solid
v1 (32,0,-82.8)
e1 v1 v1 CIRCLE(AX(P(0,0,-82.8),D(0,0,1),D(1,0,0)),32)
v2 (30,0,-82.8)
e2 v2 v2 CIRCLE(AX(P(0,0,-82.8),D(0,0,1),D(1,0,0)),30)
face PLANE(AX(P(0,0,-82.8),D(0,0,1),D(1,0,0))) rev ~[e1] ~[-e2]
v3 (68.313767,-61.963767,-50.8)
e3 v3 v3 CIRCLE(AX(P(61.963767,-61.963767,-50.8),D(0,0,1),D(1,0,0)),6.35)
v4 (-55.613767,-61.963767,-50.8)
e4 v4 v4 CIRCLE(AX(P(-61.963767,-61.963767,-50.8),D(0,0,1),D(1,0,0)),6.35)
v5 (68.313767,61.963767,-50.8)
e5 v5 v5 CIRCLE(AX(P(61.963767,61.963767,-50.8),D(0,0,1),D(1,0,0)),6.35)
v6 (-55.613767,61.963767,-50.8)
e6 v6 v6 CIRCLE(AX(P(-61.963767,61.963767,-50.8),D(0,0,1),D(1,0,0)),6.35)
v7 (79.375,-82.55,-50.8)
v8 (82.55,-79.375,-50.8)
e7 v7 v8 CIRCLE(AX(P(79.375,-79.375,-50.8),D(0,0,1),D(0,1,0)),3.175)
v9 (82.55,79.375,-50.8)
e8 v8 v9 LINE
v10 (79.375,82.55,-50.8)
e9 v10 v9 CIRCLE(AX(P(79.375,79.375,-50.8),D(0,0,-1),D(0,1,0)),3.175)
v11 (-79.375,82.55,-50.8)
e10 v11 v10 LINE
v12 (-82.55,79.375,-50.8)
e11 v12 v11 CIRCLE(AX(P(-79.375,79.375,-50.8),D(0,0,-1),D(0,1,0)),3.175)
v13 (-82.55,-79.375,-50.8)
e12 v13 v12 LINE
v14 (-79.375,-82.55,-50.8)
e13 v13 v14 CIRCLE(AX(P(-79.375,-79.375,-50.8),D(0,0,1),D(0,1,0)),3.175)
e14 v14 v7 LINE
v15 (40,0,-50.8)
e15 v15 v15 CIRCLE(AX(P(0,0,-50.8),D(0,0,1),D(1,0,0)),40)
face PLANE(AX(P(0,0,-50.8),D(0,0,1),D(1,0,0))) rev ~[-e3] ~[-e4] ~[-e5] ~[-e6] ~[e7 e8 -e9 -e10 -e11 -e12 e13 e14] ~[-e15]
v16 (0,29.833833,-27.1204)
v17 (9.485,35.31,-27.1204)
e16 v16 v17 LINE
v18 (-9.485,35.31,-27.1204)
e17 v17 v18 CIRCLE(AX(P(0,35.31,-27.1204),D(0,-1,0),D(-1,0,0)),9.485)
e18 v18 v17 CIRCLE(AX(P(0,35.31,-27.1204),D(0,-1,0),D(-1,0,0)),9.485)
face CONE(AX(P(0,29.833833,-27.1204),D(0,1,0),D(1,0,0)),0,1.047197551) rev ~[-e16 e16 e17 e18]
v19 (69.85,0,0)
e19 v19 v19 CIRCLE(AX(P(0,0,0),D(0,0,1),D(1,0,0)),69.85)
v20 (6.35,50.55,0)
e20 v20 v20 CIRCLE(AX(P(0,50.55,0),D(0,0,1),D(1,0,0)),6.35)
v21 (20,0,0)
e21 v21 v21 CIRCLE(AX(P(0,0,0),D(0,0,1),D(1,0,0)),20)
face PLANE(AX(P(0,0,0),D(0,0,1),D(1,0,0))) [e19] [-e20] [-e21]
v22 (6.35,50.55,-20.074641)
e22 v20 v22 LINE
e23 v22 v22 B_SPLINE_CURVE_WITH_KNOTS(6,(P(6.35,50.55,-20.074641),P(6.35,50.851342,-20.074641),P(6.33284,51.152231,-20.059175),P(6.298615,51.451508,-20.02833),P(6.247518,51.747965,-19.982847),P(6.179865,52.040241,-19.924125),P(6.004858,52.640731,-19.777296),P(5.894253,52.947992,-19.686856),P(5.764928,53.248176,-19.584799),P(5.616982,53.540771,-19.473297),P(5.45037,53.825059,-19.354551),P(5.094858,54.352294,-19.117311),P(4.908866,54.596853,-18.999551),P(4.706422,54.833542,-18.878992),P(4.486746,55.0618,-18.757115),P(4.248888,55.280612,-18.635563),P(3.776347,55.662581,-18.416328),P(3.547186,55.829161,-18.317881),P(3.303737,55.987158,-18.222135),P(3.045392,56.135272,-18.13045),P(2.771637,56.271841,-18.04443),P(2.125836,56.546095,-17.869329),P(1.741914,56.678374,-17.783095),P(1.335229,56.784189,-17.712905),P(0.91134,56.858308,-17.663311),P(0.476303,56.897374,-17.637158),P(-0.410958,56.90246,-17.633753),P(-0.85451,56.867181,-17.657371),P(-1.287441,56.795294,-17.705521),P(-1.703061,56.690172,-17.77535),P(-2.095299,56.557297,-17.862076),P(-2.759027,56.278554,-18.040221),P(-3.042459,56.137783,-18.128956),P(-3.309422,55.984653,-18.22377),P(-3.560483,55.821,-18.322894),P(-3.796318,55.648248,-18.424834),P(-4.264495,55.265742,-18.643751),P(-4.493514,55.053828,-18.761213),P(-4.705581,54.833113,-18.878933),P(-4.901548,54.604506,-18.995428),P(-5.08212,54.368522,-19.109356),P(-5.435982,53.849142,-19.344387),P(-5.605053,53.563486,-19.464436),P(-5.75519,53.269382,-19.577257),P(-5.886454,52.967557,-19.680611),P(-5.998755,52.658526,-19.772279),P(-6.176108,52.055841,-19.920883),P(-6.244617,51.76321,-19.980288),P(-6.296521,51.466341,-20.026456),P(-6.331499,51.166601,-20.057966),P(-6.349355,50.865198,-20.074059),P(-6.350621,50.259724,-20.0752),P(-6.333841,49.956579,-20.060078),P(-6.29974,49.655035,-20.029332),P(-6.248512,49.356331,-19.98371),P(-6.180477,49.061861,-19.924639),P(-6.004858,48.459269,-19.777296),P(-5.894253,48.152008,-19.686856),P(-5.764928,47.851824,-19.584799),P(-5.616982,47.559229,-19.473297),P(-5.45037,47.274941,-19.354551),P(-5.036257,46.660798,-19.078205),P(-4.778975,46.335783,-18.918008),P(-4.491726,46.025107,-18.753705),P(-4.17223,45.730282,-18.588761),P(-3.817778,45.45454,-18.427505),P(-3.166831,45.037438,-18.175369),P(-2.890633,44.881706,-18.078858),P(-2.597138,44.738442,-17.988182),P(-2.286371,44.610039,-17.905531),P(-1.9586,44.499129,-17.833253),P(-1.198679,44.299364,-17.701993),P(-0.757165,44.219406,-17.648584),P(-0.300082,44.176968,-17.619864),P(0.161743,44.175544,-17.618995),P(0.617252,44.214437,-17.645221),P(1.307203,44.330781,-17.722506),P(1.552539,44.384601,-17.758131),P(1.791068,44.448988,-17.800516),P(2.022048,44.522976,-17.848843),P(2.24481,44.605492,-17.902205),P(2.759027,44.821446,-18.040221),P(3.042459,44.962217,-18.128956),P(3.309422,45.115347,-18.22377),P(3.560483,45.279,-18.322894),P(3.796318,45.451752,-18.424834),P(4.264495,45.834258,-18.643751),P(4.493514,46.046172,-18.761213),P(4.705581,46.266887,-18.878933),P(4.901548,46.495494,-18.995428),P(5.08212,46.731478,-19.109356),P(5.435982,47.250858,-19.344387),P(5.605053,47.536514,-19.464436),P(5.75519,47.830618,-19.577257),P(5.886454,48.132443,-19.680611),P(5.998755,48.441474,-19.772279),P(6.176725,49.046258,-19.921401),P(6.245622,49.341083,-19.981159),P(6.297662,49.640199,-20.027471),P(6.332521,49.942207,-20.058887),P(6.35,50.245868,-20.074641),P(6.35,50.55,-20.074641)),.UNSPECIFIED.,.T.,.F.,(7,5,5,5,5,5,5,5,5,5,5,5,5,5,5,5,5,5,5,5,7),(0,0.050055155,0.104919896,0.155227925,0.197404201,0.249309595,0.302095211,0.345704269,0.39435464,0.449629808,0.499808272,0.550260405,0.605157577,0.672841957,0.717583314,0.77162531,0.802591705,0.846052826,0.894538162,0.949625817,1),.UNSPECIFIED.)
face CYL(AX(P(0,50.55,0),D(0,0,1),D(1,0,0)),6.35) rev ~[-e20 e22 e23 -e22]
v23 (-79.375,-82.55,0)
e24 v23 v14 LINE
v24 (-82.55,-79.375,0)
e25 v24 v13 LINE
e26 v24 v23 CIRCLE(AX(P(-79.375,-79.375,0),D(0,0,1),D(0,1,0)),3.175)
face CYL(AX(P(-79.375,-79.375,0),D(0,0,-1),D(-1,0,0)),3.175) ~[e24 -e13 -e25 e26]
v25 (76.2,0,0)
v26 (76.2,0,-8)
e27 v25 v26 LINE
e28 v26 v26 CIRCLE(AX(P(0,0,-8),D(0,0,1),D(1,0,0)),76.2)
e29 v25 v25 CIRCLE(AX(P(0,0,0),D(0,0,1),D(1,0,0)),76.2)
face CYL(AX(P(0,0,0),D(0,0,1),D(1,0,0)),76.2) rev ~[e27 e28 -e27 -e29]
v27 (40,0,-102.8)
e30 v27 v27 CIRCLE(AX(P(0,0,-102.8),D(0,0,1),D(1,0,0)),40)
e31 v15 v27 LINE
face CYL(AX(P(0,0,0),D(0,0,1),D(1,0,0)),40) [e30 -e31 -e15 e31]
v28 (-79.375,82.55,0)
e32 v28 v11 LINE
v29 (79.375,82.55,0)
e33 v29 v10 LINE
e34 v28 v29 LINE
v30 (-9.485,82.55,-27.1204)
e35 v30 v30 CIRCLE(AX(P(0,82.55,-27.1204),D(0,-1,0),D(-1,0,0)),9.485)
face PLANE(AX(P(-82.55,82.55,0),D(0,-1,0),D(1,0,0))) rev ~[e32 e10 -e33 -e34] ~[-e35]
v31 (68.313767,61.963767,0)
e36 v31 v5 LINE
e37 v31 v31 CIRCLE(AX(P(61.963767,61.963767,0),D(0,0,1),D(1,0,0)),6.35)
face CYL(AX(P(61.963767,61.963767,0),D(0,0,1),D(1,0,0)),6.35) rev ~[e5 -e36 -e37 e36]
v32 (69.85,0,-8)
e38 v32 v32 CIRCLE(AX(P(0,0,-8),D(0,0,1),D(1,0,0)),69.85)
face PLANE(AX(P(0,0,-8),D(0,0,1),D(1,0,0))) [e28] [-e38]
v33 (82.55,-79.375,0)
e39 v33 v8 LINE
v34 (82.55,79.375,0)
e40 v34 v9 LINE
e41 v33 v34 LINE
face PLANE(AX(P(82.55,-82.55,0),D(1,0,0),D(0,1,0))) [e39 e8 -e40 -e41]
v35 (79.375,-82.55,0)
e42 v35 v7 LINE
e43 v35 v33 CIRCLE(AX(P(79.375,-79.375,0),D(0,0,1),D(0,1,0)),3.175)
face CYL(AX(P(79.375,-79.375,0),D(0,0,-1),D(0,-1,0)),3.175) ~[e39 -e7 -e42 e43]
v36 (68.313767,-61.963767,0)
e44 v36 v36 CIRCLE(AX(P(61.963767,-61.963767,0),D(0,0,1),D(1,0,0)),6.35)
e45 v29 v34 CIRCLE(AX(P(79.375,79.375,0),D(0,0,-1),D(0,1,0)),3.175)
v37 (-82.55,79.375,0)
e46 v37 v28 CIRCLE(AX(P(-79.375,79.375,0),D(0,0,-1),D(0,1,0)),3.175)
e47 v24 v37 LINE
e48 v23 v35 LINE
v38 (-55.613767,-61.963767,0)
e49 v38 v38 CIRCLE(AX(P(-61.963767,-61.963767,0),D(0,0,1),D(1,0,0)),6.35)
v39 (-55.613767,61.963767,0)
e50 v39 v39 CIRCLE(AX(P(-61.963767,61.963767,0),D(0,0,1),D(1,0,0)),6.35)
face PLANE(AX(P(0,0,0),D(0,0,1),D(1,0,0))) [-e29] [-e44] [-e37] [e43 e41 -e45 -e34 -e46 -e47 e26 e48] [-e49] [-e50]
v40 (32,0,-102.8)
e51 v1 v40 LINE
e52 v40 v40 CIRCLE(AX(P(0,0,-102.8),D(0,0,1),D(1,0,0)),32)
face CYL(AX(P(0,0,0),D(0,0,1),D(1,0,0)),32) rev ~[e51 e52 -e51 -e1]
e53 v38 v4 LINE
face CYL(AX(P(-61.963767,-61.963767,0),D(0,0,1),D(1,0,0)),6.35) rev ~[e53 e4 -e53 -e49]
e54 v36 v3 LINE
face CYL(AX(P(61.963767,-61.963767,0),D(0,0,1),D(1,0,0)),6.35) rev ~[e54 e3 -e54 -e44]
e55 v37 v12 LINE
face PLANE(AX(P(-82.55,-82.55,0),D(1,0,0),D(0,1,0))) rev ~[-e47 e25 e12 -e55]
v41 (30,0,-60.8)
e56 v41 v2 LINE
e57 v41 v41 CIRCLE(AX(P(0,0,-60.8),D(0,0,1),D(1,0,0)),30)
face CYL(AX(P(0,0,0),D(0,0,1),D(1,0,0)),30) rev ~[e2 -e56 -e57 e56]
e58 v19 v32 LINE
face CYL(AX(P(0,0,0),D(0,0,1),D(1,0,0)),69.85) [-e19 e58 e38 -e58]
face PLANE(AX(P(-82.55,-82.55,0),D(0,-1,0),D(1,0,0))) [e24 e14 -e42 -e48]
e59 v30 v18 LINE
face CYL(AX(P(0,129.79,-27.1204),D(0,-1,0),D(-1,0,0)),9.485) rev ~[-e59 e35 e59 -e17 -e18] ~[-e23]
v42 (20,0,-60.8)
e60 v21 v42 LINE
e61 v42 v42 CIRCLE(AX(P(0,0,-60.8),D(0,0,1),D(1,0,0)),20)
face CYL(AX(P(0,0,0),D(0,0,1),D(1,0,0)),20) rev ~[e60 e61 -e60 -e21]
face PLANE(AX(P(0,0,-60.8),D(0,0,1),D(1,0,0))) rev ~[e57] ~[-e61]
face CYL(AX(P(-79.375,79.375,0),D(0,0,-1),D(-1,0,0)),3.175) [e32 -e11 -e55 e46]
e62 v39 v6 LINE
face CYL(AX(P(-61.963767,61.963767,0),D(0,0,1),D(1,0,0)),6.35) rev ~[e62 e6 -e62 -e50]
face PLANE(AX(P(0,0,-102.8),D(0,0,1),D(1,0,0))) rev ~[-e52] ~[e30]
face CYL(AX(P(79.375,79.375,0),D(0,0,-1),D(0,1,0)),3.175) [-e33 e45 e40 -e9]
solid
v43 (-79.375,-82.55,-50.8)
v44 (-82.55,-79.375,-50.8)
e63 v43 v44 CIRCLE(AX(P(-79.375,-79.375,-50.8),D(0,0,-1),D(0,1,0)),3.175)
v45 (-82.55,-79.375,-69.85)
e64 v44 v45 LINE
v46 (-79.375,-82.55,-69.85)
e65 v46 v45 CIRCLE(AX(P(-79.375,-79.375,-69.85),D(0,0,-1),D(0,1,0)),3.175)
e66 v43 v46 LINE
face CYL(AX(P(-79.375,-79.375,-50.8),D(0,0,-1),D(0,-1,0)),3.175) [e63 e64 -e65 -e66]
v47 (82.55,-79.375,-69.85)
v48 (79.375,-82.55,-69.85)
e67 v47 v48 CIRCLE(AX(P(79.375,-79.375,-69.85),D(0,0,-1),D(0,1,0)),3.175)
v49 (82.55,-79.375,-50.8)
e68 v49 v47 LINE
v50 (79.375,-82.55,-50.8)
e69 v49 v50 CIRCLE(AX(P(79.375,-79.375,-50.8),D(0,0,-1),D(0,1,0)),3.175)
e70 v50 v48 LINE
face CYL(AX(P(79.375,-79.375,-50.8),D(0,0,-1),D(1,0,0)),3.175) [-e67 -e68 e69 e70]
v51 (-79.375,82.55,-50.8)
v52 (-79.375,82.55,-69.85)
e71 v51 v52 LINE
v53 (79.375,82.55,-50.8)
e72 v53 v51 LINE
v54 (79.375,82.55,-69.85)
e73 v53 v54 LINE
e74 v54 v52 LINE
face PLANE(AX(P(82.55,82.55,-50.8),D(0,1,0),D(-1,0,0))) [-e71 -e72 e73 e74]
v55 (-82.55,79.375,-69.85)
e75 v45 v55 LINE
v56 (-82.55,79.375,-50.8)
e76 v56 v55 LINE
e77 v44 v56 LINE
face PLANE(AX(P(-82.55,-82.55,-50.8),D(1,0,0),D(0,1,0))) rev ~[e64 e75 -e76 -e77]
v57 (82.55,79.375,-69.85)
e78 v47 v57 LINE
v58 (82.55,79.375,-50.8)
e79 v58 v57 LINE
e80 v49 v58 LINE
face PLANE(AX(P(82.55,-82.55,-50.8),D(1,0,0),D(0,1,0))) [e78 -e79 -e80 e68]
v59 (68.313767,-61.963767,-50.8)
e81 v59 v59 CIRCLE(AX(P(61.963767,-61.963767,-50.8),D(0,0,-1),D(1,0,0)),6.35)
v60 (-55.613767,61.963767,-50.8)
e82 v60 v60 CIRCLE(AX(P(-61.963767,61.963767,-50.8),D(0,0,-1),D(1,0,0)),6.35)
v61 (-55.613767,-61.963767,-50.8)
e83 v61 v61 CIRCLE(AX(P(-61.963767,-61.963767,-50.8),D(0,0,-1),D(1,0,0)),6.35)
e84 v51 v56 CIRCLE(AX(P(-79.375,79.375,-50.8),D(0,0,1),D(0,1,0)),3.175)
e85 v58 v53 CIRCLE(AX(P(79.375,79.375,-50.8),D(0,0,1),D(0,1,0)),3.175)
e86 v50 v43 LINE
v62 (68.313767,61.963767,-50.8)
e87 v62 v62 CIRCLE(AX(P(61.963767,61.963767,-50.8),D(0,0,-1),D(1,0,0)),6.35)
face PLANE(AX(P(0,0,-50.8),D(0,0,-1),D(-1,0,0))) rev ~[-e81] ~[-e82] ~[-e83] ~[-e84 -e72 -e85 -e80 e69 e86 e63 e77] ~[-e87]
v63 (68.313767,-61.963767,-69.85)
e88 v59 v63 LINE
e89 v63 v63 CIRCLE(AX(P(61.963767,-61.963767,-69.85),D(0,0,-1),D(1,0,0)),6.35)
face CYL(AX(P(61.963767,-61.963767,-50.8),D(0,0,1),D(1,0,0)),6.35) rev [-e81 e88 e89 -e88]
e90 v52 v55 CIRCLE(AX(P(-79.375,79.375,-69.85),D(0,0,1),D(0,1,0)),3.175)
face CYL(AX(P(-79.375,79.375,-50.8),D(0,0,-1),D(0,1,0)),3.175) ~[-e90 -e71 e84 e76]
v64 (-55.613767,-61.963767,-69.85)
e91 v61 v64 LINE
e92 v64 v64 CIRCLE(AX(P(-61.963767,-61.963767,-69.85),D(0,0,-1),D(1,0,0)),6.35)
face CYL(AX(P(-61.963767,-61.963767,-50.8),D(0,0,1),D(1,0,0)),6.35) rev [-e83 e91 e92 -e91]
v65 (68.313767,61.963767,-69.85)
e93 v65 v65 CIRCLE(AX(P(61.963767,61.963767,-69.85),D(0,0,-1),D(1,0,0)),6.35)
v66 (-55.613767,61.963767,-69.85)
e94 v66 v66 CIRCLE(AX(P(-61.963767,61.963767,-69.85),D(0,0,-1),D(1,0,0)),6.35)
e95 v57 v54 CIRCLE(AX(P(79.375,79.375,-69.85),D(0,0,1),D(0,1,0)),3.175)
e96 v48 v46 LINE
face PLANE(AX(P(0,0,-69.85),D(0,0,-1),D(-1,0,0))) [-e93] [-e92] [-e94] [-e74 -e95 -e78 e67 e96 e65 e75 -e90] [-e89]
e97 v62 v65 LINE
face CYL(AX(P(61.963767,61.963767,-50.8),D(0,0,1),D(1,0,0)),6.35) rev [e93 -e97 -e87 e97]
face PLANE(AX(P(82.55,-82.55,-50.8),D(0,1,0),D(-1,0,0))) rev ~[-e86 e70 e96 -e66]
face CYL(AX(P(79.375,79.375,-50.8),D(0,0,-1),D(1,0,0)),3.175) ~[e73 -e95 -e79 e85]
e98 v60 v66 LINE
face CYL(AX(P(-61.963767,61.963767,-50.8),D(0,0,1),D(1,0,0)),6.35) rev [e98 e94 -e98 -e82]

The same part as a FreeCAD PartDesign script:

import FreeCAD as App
import Part
import Sketcher
from FreeCAD import Vector
Q = App.Units.Quantity


def edges_at(feature, points):
    """Names of the edges that pass closest to the given points."""
    edges = feature.Shape.Edges
    near = lambda p: min(range(len(edges)), key=lambda i: edges[i].distToShape(Part.Vertex(*p))[0])
    return sorted({f"Edge{near(p) + 1}" for p in points})


def add_polygon(sketch, points):
    """Adds a closed chain of lines whose ends are joined by coincident constraints."""
    first, n = sketch.GeometryCount, len(points)
    for a, b in zip(points, points[1:] + points[:1]):
        sketch.addGeometry(Part.LineSegment(App.Vector(*a, 0), App.Vector(*b, 0)), False)
    for i in range(n):
        sketch.addConstraint(Sketcher.Constraint("Coincident", first + i, 2, first + (i + 1) % n, 1))

doc = App.newDocument("Part")
body = doc.addObject("PartDesign::Body", "Body")

sketch1 = body.newObject("Sketcher::SketchObject", "Sketch")
sketch1.AttachmentSupport = (doc.getObject("XY_Plane"), [""])
sketch1.MapMode = "FlatFace"
sketch1.addGeometry(Part.Circle(Vector(0, 0, 0), Vector(0, 0, 1), 40), False)
sketch1.addGeometry(Part.Circle(Vector(0, 0, 0), Vector(0, 0, 1), 32), False)
sketch1.addConstraint(Sketcher.Constraint("Coincident", 0, 3, -1, 1))
sketch1.addConstraint(Sketcher.Constraint("Coincident", 1, 3, -1, 1))
sketch1.addConstraint(Sketcher.Constraint("Diameter", 0, Q("80 mm")))
sketch1.addConstraint(Sketcher.Constraint("Diameter", 1, Q("64 mm")))
pad1 = body.newObject("PartDesign::Pad", "Pad")
pad1.Profile = sketch1
pad1.Length = 102.8
pad1.Reversed = True

sketch2 = body.newObject("Sketcher::SketchObject", "Sketch001")
sketch2.AttachmentSupport = (doc.getObject("XY_Plane"), [""])
sketch2.MapMode = "FlatFace"
sketch2.addGeometry(Part.Circle(Vector(0, 0, 0), Vector(0, 0, 1), 32), False)
sketch2.addGeometry(Part.Circle(Vector(0, 0, 0), Vector(0, 0, 1), 30), False)
sketch2.addConstraint(Sketcher.Constraint("Coincident", 0, 3, -1, 1))
sketch2.addConstraint(Sketcher.Constraint("Coincident", 1, 3, -1, 1))
sketch2.addConstraint(Sketcher.Constraint("Diameter", 0, Q("64 mm")))
sketch2.addConstraint(Sketcher.Constraint("Diameter", 1, Q("60 mm")))
pad2 = body.newObject("PartDesign::Pad", "Pad001")
pad2.Profile = sketch2
pad2.Length = 82.8
pad2.Reversed = True

sketch3 = body.newObject("Sketcher::SketchObject", "Sketch002")
sketch3.AttachmentSupport = (doc.getObject("XY_Plane"), [""])
sketch3.MapMode = "FlatFace"
sketch3.addGeometry(Part.Circle(Vector(0, 0, 0), Vector(0, 0, 1), 30), False)
sketch3.addGeometry(Part.Circle(Vector(0, 0, 0), Vector(0, 0, 1), 20), False)
sketch3.addConstraint(Sketcher.Constraint("Coincident", 0, 3, -1, 1))
sketch3.addConstraint(Sketcher.Constraint("Coincident", 1, 3, -1, 1))
sketch3.addConstraint(Sketcher.Constraint("Diameter", 0, Q("60 mm")))
sketch3.addConstraint(Sketcher.Constraint("Diameter", 1, Q("40 mm")))
pad3 = body.newObject("PartDesign::Pad", "Pad002")
pad3.Profile = sketch3
pad3.Length = 60.8
pad3.Reversed = True

sketch4 = body.newObject("Sketcher::SketchObject", "Sketch003")
sketch4.AttachmentSupport = (doc.getObject("XY_Plane"), [""])
sketch4.MapMode = "FlatFace"
add_polygon(sketch4, [(-83, 83), (-83, -83), (83, -83), (83, 83)])
sketch4.addGeometry(Part.Circle(Vector(-62, -62, 0), Vector(0, 0, 1), 6), False)
sketch4.addGeometry(Part.Circle(Vector(62, -62, 0), Vector(0, 0, 1), 6), False)
sketch4.addGeometry(Part.Circle(Vector(-62, 62, 0), Vector(0, 0, 1), 6), False)
sketch4.addGeometry(Part.Circle(Vector(0, 0, 0), Vector(0, 0, 1), 40), False)
sketch4.addGeometry(Part.Circle(Vector(62, 62, 0), Vector(0, 0, 1), 6), False)
sketch4.addConstraint(Sketcher.Constraint("Vertical", 0))
sketch4.addConstraint(Sketcher.Constraint("Horizontal", 1))
sketch4.addConstraint(Sketcher.Constraint("Vertical", 2))
sketch4.addConstraint(Sketcher.Constraint("Horizontal", 3))
sketch4.addConstraint(Sketcher.Constraint("Coincident", 7, 3, -1, 1))
sketch4.addConstraint(Sketcher.Constraint("Equal", 4, 5))
sketch4.addConstraint(Sketcher.Constraint("Equal", 5, 6))
sketch4.addConstraint(Sketcher.Constraint("Equal", 6, 8))
sketch4.addConstraint(Sketcher.Constraint("Symmetric", 5, 3, 6, 3, -1, 1))
sketch4.addConstraint(Sketcher.Constraint("Symmetric", 4, 3, 8, 3, -1, 1))
sketch4.addConstraint(Sketcher.Constraint("Symmetric", 0, 2, 2, 2, -1, 1))
sketch4.addConstraint(Sketcher.Constraint("Symmetric", 4, 3, 5, 3, -2))
sketch4.addConstraint(Sketcher.Constraint("Equal", 3, 0))
sketch4.addConstraint(Sketcher.Constraint("Diameter", 7, Q("80 mm")))
sketch4.addConstraint(Sketcher.Constraint("Diameter", 4, Q("12.7 mm")))
sketch4.addConstraint(Sketcher.Constraint("DistanceX", 1, 1, 1, 2, Q("165.1 mm")))
sketch4.addConstraint(Sketcher.Constraint("DistanceX", 4, 3, -1, 1, Q("61.963767 mm")))
sketch4.addConstraint(Sketcher.Constraint("DistanceY", 4, 3, -1, 1, Q("61.963767 mm")))
pad4 = body.newObject("PartDesign::Pad", "Pad003")
pad4.Profile = sketch4
pad4.Length = 50.8
pad4.Reversed = True

sketch5 = body.newObject("Sketcher::SketchObject", "Sketch004")
sketch5.AttachmentSupport = (doc.getObject("XY_Plane"), [""])
sketch5.MapMode = "FlatFace"
sketch5.addGeometry(Part.Circle(Vector(0, 0, 0), Vector(0, 0, 1), 76), False)
sketch5.addGeometry(Part.Circle(Vector(0, 0, 0), Vector(0, 0, 1), 70), False)
sketch5.addConstraint(Sketcher.Constraint("Coincident", 0, 3, -1, 1))
sketch5.addConstraint(Sketcher.Constraint("Coincident", 1, 3, -1, 1))
sketch5.addConstraint(Sketcher.Constraint("Diameter", 0, Q("152.4 mm")))
sketch5.addConstraint(Sketcher.Constraint("Diameter", 1, Q("139.7 mm")))
pocket1 = body.newObject("PartDesign::Pocket", "Pocket")
pocket1.Profile = sketch5
pocket1.Length = 8

sketch6 = body.newObject("Sketcher::SketchObject", "Sketch005")
sketch6.AttachmentSupport = (doc.getObject("XZ_Plane"), [""])
sketch6.MapMode = "FlatFace"
sketch6.AttachmentOffset = App.Placement(Vector(0, 0, -82.55), App.Rotation())
sketch6.addGeometry(Part.Circle(Vector(0, -27, 0), Vector(0, 0, 1), 9), False)
sketch6.addConstraint(Sketcher.Constraint("PointOnObject", 0, 3, -2))
sketch6.addConstraint(Sketcher.Constraint("Diameter", 0, Q("18.97 mm")))
sketch6.addConstraint(Sketcher.Constraint("DistanceY", 0, 3, -1, 1, Q("27.1204 mm")))
doc.recompute()
hole = body.newObject("PartDesign::Hole", "Hole")
hole.Profile = sketch6
hole.ThreadType = "None"
hole.Diameter = 18.97
hole.DepthType = "Dimension"
hole.Depth = 47.24
hole.DrillPoint = "Angled"
hole.DrillPointAngle = 120
hole.Reversed = True

sketch7 = body.newObject("Sketcher::SketchObject", "Sketch006")
sketch7.AttachmentSupport = (doc.getObject("XY_Plane"), [""])
sketch7.MapMode = "FlatFace"
sketch7.addGeometry(Part.Circle(Vector(0, 51, 0), Vector(0, 0, 1), 6), False)
sketch7.addConstraint(Sketcher.Constraint("PointOnObject", 0, 3, -2))
sketch7.addConstraint(Sketcher.Constraint("Diameter", 0, Q("12.7 mm")))
sketch7.addConstraint(Sketcher.Constraint("DistanceY", -1, 1, 0, 3, Q("50.55 mm")))
pocket2 = body.newObject("PartDesign::Pocket", "Pocket001")
pocket2.Profile = sketch7
pocket2.Length = 20.074641
doc.recompute()

fillet = body.newObject("PartDesign::Fillet", "Fillet")
fillet.Base = (pocket2, edges_at(pocket2, [
    (82.55, 82.55, -25.4),
    (82.55, -82.55, -25.4),
    (-82.55, -82.55, -25.4),
    (-82.55, 82.55, -25.4),
]))
fillet.Radius = 3.175
body2 = doc.addObject("PartDesign::Body", "Body001")

sketch8 = body2.newObject("Sketcher::SketchObject", "Sketch007")
sketch8.AttachmentSupport = (doc.getObject("XY_Plane001"), [""])
sketch8.MapMode = "FlatFace"
sketch8.AttachmentOffset = App.Placement(Vector(0, 0, -50.8), App.Rotation())
add_polygon(sketch8, [(83, 83), (83, -83), (-83, -83), (-83, 83)])
sketch8.addGeometry(Part.Circle(Vector(62, -62, 0), Vector(0, 0, 1), 6), False)
sketch8.addGeometry(Part.Circle(Vector(-62, -62, 0), Vector(0, 0, 1), 6), False)
sketch8.addGeometry(Part.Circle(Vector(62, 62, 0), Vector(0, 0, 1), 6), False)
sketch8.addGeometry(Part.Circle(Vector(-62, 62, 0), Vector(0, 0, 1), 6), False)
sketch8.addConstraint(Sketcher.Constraint("Vertical", 0))
sketch8.addConstraint(Sketcher.Constraint("Horizontal", 1))
sketch8.addConstraint(Sketcher.Constraint("Vertical", 2))
sketch8.addConstraint(Sketcher.Constraint("Horizontal", 3))
sketch8.addConstraint(Sketcher.Constraint("Equal", 4, 5))
sketch8.addConstraint(Sketcher.Constraint("Equal", 5, 6))
sketch8.addConstraint(Sketcher.Constraint("Equal", 6, 7))
sketch8.addConstraint(Sketcher.Constraint("Symmetric", 5, 3, 6, 3, -1, 1))
sketch8.addConstraint(Sketcher.Constraint("Symmetric", 4, 3, 7, 3, -1, 1))
sketch8.addConstraint(Sketcher.Constraint("Symmetric", 0, 2, 2, 2, -1, 1))
sketch8.addConstraint(Sketcher.Constraint("Symmetric", 4, 3, 5, 3, -2))
sketch8.addConstraint(Sketcher.Constraint("Equal", 3, 0))
sketch8.addConstraint(Sketcher.Constraint("Diameter", 4, Q("12.7 mm")))
sketch8.addConstraint(Sketcher.Constraint("DistanceX", 1, 2, 1, 1, Q("165.1 mm")))
sketch8.addConstraint(Sketcher.Constraint("DistanceX", -1, 1, 4, 3, Q("61.963767 mm")))
sketch8.addConstraint(Sketcher.Constraint("DistanceY", 4, 3, -1, 1, Q("61.963767 mm")))
pad5 = body2.newObject("PartDesign::Pad", "Pad004")
pad5.Profile = sketch8
pad5.Length = 19.05
pad5.Reversed = True
doc.recompute()

fillet2 = body2.newObject("PartDesign::Fillet", "Fillet001")
fillet2.Base = (pad5, edges_at(pad5, [
    (-82.55, 82.55, -60.325),
    (-82.55, -82.55, -60.325),
    (82.55, -82.55, -60.325),
    (82.55, 82.55, -60.325),
]))
fillet2.Radius = 3.175

doc.recompute()
